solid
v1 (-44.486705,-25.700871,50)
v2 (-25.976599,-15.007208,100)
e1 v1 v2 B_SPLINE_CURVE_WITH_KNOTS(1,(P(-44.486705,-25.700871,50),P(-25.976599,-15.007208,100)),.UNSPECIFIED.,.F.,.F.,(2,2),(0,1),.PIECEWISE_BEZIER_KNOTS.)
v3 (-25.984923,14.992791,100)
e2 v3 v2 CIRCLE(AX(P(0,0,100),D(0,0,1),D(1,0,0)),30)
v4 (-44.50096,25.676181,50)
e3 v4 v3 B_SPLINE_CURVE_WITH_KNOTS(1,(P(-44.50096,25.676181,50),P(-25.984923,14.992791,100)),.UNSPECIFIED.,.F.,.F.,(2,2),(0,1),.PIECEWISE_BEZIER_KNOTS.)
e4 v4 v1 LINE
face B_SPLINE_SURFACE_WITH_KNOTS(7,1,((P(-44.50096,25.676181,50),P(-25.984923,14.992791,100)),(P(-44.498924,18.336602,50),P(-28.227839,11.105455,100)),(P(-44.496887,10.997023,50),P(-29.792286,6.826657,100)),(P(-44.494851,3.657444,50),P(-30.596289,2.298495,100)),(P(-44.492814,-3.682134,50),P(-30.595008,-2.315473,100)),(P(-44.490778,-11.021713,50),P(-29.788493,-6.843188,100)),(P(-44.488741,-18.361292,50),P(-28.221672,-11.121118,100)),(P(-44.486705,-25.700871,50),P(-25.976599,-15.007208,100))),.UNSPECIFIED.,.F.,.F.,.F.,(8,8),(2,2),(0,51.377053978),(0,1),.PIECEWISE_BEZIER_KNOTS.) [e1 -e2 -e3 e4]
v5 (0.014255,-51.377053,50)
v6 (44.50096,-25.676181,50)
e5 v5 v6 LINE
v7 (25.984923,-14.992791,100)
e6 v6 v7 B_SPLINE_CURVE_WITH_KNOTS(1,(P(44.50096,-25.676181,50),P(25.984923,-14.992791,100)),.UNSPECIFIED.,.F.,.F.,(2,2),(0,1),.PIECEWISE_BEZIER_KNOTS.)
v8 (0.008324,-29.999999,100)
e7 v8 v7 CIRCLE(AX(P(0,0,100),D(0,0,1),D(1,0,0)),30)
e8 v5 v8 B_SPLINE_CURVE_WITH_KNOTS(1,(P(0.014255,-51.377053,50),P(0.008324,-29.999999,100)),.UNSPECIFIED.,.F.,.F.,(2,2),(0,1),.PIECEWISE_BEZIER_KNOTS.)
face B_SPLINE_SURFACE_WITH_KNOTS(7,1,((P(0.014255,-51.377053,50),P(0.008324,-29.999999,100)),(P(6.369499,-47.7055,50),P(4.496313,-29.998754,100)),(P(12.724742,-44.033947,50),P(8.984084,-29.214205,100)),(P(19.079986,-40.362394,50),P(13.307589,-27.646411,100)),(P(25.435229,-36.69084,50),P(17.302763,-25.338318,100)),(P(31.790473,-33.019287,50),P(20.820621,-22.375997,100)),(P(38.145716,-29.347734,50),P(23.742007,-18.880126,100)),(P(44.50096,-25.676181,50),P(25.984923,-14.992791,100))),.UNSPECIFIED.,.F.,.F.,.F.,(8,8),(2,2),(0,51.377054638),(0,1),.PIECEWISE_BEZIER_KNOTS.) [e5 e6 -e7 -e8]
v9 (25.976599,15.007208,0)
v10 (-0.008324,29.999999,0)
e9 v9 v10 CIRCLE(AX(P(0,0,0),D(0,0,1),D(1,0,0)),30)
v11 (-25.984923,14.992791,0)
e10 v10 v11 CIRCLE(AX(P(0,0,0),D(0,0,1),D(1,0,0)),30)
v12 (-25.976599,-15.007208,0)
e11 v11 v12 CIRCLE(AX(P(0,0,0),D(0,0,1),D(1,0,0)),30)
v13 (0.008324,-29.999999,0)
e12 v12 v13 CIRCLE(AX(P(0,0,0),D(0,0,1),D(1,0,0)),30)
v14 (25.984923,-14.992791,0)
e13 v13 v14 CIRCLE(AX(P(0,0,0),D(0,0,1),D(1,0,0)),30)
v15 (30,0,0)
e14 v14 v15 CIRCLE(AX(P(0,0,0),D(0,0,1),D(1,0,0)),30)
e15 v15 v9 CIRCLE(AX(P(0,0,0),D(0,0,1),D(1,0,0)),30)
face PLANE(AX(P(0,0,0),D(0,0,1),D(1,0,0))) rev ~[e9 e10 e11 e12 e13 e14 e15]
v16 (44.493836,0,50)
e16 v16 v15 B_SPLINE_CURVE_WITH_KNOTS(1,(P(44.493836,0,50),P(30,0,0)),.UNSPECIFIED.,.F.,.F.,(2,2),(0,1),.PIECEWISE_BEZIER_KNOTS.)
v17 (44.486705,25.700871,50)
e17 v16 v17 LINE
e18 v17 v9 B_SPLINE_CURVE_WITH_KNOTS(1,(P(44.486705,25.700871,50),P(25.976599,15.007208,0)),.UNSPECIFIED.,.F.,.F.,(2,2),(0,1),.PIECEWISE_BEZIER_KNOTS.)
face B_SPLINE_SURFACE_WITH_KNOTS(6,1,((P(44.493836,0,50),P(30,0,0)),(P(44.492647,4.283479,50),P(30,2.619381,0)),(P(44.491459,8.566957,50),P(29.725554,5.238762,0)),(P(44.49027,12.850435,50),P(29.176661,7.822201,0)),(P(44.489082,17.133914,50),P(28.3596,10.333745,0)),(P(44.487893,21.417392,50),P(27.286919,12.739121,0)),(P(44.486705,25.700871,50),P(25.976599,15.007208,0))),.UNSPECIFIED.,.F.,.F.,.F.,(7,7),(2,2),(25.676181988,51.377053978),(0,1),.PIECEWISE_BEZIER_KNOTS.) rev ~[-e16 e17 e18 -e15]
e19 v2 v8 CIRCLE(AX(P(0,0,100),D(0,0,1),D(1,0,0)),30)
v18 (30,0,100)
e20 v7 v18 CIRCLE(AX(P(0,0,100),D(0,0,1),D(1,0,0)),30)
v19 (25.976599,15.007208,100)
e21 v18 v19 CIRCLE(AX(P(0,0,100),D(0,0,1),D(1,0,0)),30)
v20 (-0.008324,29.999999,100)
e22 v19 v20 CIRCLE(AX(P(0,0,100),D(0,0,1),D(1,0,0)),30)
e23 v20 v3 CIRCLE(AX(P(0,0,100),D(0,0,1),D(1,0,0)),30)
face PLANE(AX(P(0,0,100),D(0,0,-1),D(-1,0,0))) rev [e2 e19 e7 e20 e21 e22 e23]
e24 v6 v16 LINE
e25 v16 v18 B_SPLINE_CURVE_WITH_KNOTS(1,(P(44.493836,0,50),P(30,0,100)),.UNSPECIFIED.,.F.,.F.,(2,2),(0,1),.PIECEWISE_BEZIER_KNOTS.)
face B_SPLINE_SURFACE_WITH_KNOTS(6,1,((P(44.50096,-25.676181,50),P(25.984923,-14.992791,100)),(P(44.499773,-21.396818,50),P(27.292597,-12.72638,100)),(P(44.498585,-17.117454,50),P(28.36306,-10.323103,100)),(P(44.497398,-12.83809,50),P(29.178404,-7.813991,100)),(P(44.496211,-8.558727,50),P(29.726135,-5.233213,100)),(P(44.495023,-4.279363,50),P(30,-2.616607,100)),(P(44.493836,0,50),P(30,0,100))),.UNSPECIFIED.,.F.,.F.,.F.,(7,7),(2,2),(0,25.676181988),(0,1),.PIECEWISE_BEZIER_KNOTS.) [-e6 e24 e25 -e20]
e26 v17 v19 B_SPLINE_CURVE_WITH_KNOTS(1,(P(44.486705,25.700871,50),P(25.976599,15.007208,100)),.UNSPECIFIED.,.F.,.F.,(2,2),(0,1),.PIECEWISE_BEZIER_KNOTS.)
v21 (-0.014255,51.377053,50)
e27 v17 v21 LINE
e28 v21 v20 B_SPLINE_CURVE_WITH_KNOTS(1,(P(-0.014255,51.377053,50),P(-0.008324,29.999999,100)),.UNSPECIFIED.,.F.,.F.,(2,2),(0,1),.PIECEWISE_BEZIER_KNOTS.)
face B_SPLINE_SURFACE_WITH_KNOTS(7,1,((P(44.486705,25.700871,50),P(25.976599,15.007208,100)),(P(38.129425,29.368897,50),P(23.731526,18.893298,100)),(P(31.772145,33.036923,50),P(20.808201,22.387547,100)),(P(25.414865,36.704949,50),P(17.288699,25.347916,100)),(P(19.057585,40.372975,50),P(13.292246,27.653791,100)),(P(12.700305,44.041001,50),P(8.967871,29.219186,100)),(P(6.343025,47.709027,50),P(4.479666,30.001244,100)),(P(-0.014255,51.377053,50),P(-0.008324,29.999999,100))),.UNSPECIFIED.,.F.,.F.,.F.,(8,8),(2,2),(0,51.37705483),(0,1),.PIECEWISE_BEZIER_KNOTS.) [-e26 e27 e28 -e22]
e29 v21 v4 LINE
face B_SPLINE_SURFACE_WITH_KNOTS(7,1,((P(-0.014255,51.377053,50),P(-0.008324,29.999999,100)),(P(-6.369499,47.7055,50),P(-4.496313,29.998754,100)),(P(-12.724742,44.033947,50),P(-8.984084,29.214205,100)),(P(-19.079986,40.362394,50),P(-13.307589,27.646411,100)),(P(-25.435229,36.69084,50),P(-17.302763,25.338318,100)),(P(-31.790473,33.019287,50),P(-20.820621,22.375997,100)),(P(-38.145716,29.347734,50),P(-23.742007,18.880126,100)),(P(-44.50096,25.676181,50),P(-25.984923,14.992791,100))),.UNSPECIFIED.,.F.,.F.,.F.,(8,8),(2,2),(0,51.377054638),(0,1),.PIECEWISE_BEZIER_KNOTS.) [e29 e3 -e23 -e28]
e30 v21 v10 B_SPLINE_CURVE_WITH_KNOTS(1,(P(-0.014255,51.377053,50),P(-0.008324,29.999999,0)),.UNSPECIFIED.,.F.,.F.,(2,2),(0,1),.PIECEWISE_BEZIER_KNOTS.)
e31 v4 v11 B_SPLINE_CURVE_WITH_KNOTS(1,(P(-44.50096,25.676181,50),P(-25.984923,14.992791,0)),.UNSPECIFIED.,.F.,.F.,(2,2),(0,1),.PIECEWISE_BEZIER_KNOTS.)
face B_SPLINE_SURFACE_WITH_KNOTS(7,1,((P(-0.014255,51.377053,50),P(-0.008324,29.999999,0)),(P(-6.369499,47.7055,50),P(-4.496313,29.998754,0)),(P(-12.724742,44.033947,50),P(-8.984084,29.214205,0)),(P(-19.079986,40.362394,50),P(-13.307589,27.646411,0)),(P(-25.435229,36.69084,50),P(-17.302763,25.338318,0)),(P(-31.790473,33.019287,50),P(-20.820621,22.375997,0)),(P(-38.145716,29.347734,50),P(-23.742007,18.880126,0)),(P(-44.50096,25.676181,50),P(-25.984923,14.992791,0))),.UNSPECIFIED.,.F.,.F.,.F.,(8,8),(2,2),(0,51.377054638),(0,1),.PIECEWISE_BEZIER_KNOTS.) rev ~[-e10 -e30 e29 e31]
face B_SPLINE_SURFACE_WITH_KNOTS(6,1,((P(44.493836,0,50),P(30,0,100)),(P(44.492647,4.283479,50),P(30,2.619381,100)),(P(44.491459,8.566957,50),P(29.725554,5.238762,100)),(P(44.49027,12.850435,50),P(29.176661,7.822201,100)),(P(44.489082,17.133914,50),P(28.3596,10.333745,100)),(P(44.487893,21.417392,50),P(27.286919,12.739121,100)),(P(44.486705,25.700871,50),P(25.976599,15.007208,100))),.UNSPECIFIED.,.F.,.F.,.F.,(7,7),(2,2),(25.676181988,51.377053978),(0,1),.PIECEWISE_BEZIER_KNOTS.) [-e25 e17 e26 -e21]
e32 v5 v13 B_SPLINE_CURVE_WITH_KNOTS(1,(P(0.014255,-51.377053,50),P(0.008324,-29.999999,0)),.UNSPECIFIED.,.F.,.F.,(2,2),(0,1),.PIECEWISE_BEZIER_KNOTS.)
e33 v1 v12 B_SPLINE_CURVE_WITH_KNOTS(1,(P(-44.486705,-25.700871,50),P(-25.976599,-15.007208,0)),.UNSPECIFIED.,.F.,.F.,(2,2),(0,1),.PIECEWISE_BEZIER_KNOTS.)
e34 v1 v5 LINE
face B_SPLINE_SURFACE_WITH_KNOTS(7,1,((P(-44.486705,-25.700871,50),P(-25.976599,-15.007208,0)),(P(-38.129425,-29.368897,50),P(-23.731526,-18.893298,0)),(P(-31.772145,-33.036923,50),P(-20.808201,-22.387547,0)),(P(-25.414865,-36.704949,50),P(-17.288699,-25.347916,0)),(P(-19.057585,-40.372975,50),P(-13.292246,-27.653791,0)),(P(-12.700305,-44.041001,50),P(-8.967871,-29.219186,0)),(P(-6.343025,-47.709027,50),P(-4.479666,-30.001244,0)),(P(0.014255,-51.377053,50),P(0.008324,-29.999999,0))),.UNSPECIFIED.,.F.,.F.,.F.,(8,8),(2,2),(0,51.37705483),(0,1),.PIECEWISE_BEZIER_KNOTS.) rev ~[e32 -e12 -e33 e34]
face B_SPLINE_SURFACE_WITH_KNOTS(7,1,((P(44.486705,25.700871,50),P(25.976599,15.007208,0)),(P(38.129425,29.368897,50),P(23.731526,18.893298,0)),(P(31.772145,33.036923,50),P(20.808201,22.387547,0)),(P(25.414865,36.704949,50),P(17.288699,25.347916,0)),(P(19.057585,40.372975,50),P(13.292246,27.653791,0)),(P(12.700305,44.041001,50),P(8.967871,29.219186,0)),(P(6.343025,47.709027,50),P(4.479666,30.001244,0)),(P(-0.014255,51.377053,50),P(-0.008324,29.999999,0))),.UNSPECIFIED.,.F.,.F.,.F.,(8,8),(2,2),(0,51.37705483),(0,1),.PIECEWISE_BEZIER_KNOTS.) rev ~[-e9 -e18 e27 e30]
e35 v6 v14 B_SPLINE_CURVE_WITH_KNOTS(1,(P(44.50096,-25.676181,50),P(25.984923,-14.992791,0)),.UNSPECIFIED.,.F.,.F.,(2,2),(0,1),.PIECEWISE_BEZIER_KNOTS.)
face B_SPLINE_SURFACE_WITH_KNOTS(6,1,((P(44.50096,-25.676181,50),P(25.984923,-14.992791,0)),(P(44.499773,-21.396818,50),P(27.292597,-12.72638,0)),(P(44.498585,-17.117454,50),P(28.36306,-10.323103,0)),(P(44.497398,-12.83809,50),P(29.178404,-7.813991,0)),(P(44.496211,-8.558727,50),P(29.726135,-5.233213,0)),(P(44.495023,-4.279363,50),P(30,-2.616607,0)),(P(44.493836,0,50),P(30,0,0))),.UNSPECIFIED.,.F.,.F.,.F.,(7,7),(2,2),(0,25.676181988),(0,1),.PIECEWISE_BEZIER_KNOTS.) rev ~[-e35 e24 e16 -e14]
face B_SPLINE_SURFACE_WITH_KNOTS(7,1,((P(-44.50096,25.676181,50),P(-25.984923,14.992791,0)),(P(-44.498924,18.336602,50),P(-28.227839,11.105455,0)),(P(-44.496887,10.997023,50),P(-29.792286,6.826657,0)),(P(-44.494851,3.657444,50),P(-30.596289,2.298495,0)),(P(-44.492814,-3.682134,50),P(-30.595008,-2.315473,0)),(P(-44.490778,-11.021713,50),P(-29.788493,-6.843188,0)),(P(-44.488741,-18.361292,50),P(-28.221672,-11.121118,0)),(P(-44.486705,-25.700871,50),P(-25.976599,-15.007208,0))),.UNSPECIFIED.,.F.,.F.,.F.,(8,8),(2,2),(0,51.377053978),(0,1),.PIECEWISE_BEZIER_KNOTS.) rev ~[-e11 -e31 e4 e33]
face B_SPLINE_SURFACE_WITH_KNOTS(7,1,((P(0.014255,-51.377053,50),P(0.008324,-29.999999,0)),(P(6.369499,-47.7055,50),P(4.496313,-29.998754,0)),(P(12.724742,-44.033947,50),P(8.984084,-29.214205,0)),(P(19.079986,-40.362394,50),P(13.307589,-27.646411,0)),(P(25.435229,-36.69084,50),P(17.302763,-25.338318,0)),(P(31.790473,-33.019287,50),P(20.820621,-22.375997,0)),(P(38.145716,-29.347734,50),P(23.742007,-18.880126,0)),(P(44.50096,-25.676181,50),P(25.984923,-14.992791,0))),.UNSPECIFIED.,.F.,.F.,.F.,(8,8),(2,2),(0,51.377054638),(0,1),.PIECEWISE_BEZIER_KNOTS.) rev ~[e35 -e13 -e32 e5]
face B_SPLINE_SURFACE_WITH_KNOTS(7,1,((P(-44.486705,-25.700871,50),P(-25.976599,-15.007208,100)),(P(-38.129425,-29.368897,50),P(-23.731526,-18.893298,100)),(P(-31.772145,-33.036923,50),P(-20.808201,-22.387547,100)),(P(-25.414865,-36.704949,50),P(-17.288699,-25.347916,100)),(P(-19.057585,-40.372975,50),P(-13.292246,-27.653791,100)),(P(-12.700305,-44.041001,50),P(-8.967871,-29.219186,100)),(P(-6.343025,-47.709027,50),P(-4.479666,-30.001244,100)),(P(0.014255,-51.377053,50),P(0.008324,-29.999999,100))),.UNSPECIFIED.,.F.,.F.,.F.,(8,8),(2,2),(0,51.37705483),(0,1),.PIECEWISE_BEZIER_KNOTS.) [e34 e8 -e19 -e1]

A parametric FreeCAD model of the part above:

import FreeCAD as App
import Part
import Sketcher

V = App.Vector

doc = App.newDocument("Part")
body = doc.addObject("PartDesign::Body", "Body")

sketch1 = body.newObject("Sketcher::SketchObject", "Sketch")
sketch1.AttachmentSupport = (doc.getObject("XY_Plane"), [""])
sketch1.MapMode = "FlatFace"
sketch1.AttachmentOffset = App.Placement(V(0, 0, 50), App.Rotation())
sketch1.addGeometry([
    Part.LineSegment(V(0, -51, 0), V(45, -26, 0)),
    Part.LineSegment(V(45, -26, 0), V(44, 26, 0)),
    Part.LineSegment(V(44, 26, 0), V(0, 51, 0)),
    Part.LineSegment(V(0, 51, 0), V(-45, 26, 0)),
    Part.LineSegment(V(-45, 26, 0), V(-44, -26, 0)),
    Part.LineSegment(V(-44, -26, 0), V(0, -51, 0)),
], False)
sketch1.addConstraint([
    Sketcher.Constraint("Coincident", 0, 2, 1, 1),
    Sketcher.Constraint("Coincident", 1, 2, 2, 1),
    Sketcher.Constraint("Coincident", 2, 2, 3, 1),
    Sketcher.Constraint("Coincident", 3, 2, 4, 1),
    Sketcher.Constraint("Coincident", 4, 2, 5, 1),
    Sketcher.Constraint("Coincident", 5, 2, 0, 1),
    Sketcher.Constraint("Symmetric", 0, 2, 3, 2, -1, 1),
    Sketcher.Constraint("Symmetric", 1, 2, 4, 2, -1, 1),
    Sketcher.Constraint("Symmetric", 2, 2, 5, 2, -1, 1),
    Sketcher.Constraint("Equal", 0, 1),
    Sketcher.Constraint("Equal", 1, 2),
    Sketcher.Constraint("DistanceX", -1, 1, 0, 2, 44.50096),
    Sketcher.Constraint("DistanceY", 0, 2, -1, 1, 25.676181),
    Sketcher.Constraint("DistanceY", -1, 1, 1, 2, 25.700871),
    Sketcher.Constraint("DistanceX", 2, 2, 1, 2, 44.50096),
])

sketch2 = body.newObject("Sketcher::SketchObject", "Sketch001")
sketch2.AttachmentSupport = (doc.getObject("XY_Plane"), [""])
sketch2.MapMode = "FlatFace"
sketch2.addGeometry(Part.Circle(V(0, 0, 0), V(0, 0, 1), 30), False)
sketch2.addConstraint([
    Sketcher.Constraint("Coincident", 0, 3, -1, 1),
    Sketcher.Constraint("Diameter", 0, 60.0),
])

additiveloft = body.newObject("PartDesign::AdditiveLoft", "AdditiveLoft")
additiveloft.Profile = sketch1
additiveloft.Sections = [sketch2]
body2 = doc.addObject("PartDesign::Body", "Body001")
doc.recompute()

body2.BaseFeature = body
doc.recompute()

mirroring = doc.addObject("Part::Mirroring", "Mirroring")
mirroring.Source = body
mirroring.Base = V(0, 0, 50)
mirroring.Normal = V(0, 0, 1)
body3 = doc.addObject("PartDesign::Body", "Body002")
body3.BaseFeature = mirroring
boolean = body2.newObject("PartDesign::Boolean", "Boolean")
boolean.Type = "Fuse"
boolean.addObjects([body3])
doc.recompute()
mirroring.Visibility = False

doc.recompute()
